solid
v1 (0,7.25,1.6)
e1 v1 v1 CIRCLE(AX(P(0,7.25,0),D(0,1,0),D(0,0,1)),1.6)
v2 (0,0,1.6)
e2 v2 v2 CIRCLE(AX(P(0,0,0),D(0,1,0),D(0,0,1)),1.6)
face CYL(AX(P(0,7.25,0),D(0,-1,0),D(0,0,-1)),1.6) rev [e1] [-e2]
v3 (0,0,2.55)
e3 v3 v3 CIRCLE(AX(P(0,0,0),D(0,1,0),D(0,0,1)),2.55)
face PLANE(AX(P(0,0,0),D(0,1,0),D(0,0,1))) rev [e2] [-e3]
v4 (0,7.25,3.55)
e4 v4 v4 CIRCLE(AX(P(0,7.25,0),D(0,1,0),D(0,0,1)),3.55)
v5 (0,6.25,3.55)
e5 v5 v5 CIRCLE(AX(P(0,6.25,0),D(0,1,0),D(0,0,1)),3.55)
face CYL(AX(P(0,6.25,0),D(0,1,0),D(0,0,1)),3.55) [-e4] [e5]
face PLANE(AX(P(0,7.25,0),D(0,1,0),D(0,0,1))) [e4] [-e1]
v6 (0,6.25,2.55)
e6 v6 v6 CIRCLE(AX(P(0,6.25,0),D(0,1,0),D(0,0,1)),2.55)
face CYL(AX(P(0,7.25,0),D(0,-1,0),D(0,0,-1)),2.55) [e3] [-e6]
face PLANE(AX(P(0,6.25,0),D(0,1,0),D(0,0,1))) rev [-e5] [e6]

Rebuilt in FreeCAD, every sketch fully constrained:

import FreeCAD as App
import Part
import Sketcher
from FreeCAD import Vector
Q = App.Units.Quantity

doc = App.newDocument("Part")
body = doc.addObject("PartDesign::Body", "Body")

# Sketch on XZ plane
sketch1 = body.newObject("Sketcher::SketchObject", "Sketch")
sketch1.AttachmentSupport = (doc.getObject("XZ_Plane"), [""])
sketch1.MapMode = "FlatFace"
sketch1.addGeometry([
    Part.Circle(Vector(0, 0, 0), Vector(0, 0, 1), 2.55),
    Part.Circle(Vector(0, 0, 0), Vector(0, 0, 1), 1.6),
], False)
sketch1.addConstraint([
    Sketcher.Constraint("Coincident", 0, 3, -1, 1),
    Sketcher.Constraint("Coincident", 1, 3, -1, 1),
    Sketcher.Constraint("Diameter", 0, Q("5.1 mm")),
    Sketcher.Constraint("Diameter", 1, Q("3.2 mm")),
])
pad1 = body.newObject("PartDesign::Pad", "Pad")
pad1.Profile = sketch1
pad1.Length = 7.25
pad1.Reversed = True

# Sketch on XZ plane
sketch2 = body.newObject("Sketcher::SketchObject", "Sketch001")
sketch2.AttachmentSupport = (doc.getObject("XZ_Plane"), [""])
sketch2.MapMode = "FlatFace"
sketch2.AttachmentOffset = App.Placement(Vector(0, 0, -7.25), App.Rotation())
sketch2.addGeometry([
    Part.Circle(Vector(0, 0, 0), Vector(0, 0, 1), 3.55),
    Part.Circle(Vector(0, 0, 0), Vector(0, 0, 1), 1.6),
], False)
sketch2.addConstraint([
    Sketcher.Constraint("Coincident", 0, 3, -1, 1),
    Sketcher.Constraint("Coincident", 1, 3, -1, 1),
    Sketcher.Constraint("Diameter", 0, Q("7.1 mm")),
    Sketcher.Constraint("Diameter", 1, Q("3.2 mm")),
])
pad2 = body.newObject("PartDesign::Pad", "Pad001")
pad2.Profile = sketch2
pad2.Length = 1

doc.recompute()
